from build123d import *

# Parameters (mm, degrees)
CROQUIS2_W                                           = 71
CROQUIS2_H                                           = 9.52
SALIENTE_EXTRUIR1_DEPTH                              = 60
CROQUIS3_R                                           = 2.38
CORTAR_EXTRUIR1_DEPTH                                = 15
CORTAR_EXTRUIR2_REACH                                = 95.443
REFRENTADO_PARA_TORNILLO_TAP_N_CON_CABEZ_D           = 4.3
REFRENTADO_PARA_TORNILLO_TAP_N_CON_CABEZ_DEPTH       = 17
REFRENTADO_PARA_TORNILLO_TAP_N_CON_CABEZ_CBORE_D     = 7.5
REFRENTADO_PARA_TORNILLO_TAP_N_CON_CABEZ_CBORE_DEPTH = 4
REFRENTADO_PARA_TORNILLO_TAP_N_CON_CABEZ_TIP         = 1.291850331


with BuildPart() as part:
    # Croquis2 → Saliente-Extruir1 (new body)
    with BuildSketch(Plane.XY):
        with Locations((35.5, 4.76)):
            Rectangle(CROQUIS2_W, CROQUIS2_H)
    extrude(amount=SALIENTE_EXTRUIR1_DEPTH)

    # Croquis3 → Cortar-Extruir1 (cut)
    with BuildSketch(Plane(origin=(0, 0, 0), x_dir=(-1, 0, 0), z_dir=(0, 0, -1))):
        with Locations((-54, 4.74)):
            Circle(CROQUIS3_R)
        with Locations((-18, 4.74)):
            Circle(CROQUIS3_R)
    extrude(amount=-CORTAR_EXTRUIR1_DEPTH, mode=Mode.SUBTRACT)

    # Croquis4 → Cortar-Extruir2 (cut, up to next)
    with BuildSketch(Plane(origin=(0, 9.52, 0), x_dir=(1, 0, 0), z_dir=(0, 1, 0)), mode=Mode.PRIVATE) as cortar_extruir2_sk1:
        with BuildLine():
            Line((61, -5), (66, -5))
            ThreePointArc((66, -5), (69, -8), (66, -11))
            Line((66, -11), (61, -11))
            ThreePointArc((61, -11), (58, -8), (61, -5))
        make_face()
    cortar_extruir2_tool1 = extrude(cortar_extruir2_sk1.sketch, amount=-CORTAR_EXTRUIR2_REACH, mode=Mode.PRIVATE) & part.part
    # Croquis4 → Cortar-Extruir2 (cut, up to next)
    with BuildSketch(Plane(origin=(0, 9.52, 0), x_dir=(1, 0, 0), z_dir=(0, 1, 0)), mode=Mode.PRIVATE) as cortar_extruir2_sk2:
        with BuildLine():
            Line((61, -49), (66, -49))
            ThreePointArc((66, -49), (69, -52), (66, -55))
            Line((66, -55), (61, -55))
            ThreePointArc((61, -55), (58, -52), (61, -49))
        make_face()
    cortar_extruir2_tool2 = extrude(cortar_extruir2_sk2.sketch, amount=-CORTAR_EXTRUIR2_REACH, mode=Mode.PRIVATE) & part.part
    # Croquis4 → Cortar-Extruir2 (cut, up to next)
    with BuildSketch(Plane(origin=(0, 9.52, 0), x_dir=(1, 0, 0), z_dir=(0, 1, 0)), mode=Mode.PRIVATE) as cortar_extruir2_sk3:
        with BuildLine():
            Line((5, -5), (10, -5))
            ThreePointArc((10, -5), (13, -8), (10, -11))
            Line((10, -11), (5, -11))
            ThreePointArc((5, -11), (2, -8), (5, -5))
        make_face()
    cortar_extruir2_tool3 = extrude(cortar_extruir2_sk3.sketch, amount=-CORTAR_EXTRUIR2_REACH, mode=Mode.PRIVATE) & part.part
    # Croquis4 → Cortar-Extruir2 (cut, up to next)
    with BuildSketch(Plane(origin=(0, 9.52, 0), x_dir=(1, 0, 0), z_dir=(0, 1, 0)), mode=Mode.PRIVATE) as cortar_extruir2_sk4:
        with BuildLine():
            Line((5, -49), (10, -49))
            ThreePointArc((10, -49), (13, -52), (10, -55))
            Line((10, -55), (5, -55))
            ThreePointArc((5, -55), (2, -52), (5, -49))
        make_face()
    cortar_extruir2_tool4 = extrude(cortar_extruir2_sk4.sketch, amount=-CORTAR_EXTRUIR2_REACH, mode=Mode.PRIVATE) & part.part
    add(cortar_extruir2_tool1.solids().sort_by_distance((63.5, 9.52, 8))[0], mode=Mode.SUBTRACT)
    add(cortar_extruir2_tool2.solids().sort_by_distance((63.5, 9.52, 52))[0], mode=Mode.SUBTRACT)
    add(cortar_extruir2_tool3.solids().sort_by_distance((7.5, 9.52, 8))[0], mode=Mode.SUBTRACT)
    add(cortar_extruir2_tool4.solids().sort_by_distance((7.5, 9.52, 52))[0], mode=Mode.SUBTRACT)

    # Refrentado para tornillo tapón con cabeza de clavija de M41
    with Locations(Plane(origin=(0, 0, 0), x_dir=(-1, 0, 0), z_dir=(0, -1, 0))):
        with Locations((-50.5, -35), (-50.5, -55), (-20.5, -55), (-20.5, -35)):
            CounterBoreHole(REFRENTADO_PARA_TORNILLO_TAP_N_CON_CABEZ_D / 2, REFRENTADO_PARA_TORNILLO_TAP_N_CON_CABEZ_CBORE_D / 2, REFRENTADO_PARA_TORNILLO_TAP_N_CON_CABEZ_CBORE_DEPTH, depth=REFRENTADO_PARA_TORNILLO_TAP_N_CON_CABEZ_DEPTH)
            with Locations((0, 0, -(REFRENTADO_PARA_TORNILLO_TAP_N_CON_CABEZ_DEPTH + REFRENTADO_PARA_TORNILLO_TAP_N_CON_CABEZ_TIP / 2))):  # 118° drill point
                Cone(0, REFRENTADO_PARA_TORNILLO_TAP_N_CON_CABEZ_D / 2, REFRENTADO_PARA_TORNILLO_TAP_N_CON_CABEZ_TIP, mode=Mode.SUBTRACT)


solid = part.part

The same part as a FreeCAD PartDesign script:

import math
import FreeCAD as App
import Part
import Sketcher
from FreeCAD import Vector


def add_polygon(sketch, points):
    """Adds a closed chain of lines whose ends are joined by coincident constraints."""
    first, n = sketch.GeometryCount, len(points)
    for a, b in zip(points, points[1:] + points[:1]):
        sketch.addGeometry(Part.LineSegment(App.Vector(*a, 0), App.Vector(*b, 0)), False)
    for i in range(n):
        sketch.addConstraint(Sketcher.Constraint("Coincident", first + i, 2, first + (i + 1) % n, 1))

doc = App.newDocument("Part")
params = doc.addObject("Spreadsheet::Sheet", "Params")
for row, (alias, value) in enumerate([
    ("sketch1_width", "71 mm"),
    ("sketch1_height", "9.52 mm"),
    ("pad1_length", "60 mm"),
    ("sketch2_diameter", "4.76 mm"),
    ("pocket1_length", "15 mm"),
    ("sketch3_radius", "3 mm"),
    ("sketch3_width", "5 mm"),
    ("sketch4_radius", "3 mm"),
    ("sketch4_width", "5 mm"),
    ("sketch5_radius", "3 mm"),
    ("sketch5_width", "5 mm"),
    ("sketch6_radius", "3 mm"),
    ("sketch6_width", "5 mm"),
    ("sketch7_diameter", "4.3 mm"),
    ("hole_diameter", "4.3 mm"),
    ("hole_depth", "17 mm"),
    ("hole_cbore_diameter", "7.5 mm"),
    ("hole_cbore_depth", "4 mm"),
], start=1):
    params.set(f"A{row}", alias)
    params.set(f"B{row}", "=" + value)
    params.setAlias(f"B{row}", alias)

body = doc.addObject("PartDesign::Body", "Body")

# Sketch on XY plane
sketch1 = body.newObject("Sketcher::SketchObject", "Sketch")
sketch1.AttachmentSupport = (doc.getObject("XY_Plane"), [""])
sketch1.MapMode = "FlatFace"
add_polygon(sketch1, [(0, 10), (0, 0), (71, 0), (71, 10)])  # lines 0-3
sketch1.addConstraint(Sketcher.Constraint("Vertical", 0))
sketch1.addConstraint(Sketcher.Constraint("Horizontal", 1))
sketch1.addConstraint(Sketcher.Constraint("Vertical", 2))
sketch1.addConstraint(Sketcher.Constraint("Horizontal", 3))
sketch1.addConstraint(Sketcher.Constraint("Coincident", 0, 2, -1, 1))
sketch1.addConstraint(Sketcher.Constraint("DistanceX", 1, 1, 1, 2, 71.0))
sketch1.addConstraint(Sketcher.Constraint("DistanceY", 0, 2, 0, 1, 9.52))
sketch1.setExpression("Constraints[9]", "Params.sketch1_width")
sketch1.setExpression("Constraints[10]", "Params.sketch1_height")
pad1 = body.newObject("PartDesign::Pad", "Pad")
pad1.Profile = sketch1
pad1.setExpression("Length", "Params.pad1_length")

# Sketch on XY plane
sketch2 = body.newObject("Sketcher::SketchObject", "Sketch001")
sketch2.AttachmentSupport = (doc.getObject("XY_Plane"), [""])
sketch2.MapMode = "FlatFace"
sketch2.addGeometry(Part.Circle(Vector(54, 4.7, 0), Vector(0, 0, 1), 2.4), False)
sketch2.addGeometry(Part.Circle(Vector(18, 4.7, 0), Vector(0, 0, 1), 2.4), False)
sketch2.addConstraint(Sketcher.Constraint("Equal", 0, 1))
sketch2.addConstraint(Sketcher.Constraint("Horizontal", 0, 3, 1, 3))
sketch2.addConstraint(Sketcher.Constraint("Diameter", 0, 4.76))
sketch2.addConstraint(Sketcher.Constraint("DistanceX", -1, 1, 0, 3, 54.0))
sketch2.addConstraint(Sketcher.Constraint("DistanceX", -1, 1, 1, 3, 18.0))
sketch2.addConstraint(Sketcher.Constraint("DistanceY", -1, 1, 0, 3, 4.74))
sketch2.setExpression("Constraints[2]", "Params.sketch2_diameter")
pocket1 = body.newObject("PartDesign::Pocket", "Pocket")
pocket1.Profile = sketch2
pocket1.setExpression("Length", "Params.pocket1_length")
pocket1.Reversed = True

# Sketch on XZ plane
sketch3 = body.newObject("Sketcher::SketchObject", "Sketch002")
sketch3.AttachmentSupport = (doc.getObject("XZ_Plane"), [""])
sketch3.MapMode = "FlatFace"
sketch3.AttachmentOffset = App.Placement(Vector(0, 0, -9.52), App.Rotation())
sketch3.addGeometry(Part.LineSegment(Vector(66, 5, 0), Vector(61, 5, 0)), False)
sketch3.addGeometry(Part.ArcOfCircle(Part.Circle(Vector(61, 8, 0), Vector(0, 0, 1), 3), math.radians(90), math.radians(270)), False)
sketch3.addGeometry(Part.LineSegment(Vector(61, 11, 0), Vector(66, 11, 0)), False)
sketch3.addGeometry(Part.ArcOfCircle(Part.Circle(Vector(66, 8, 0), Vector(0, 0, 1), 3), math.radians(-90), math.radians(90)), False)
sketch3.addConstraint(Sketcher.Constraint("Tangent", 0, 2, 1, 2))
sketch3.addConstraint(Sketcher.Constraint("Tangent", 1, 1, 2, 1))
sketch3.addConstraint(Sketcher.Constraint("Tangent", 2, 2, 3, 2))
sketch3.addConstraint(Sketcher.Constraint("Tangent", 3, 1, 0, 1))
sketch3.addConstraint(Sketcher.Constraint("Horizontal", 0))
sketch3.addConstraint(Sketcher.Constraint("Horizontal", 2))
sketch3.addConstraint(Sketcher.Constraint("Radius", 1, 3.0))
sketch3.addConstraint(Sketcher.Constraint("DistanceX", 0, 2, 0, 1, 5.0))
sketch3.addConstraint(Sketcher.Constraint("DistanceX", -1, 1, 1, 3, 61.0))
sketch3.addConstraint(Sketcher.Constraint("DistanceY", -1, 1, 1, 3, 8.0))
sketch3.setExpression("Constraints[6]", "Params.sketch3_radius")
sketch3.setExpression("Constraints[7]", "Params.sketch3_width")
pocket2 = body.newObject("PartDesign::Pocket", "Pocket001")
pocket2.Profile = sketch3
pocket2.Type = "UpToFirst"
pocket2.Reversed = True

# Sketch on XZ plane
sketch4 = body.newObject("Sketcher::SketchObject", "Sketch003")
sketch4.AttachmentSupport = (doc.getObject("XZ_Plane"), [""])
sketch4.MapMode = "FlatFace"
sketch4.AttachmentOffset = App.Placement(Vector(0, 0, -9.52), App.Rotation())
sketch4.addGeometry(Part.LineSegment(Vector(66, 49, 0), Vector(61, 49, 0)), False)
sketch4.addGeometry(Part.ArcOfCircle(Part.Circle(Vector(61, 52, 0), Vector(0, 0, 1), 3), math.radians(90), math.radians(270)), False)
sketch4.addGeometry(Part.LineSegment(Vector(61, 55, 0), Vector(66, 55, 0)), False)
sketch4.addGeometry(Part.ArcOfCircle(Part.Circle(Vector(66, 52, 0), Vector(0, 0, 1), 3), math.radians(-90), math.radians(90)), False)
sketch4.addConstraint(Sketcher.Constraint("Tangent", 0, 2, 1, 2))
sketch4.addConstraint(Sketcher.Constraint("Tangent", 1, 1, 2, 1))
sketch4.addConstraint(Sketcher.Constraint("Tangent", 2, 2, 3, 2))
sketch4.addConstraint(Sketcher.Constraint("Tangent", 3, 1, 0, 1))
sketch4.addConstraint(Sketcher.Constraint("Horizontal", 0))
sketch4.addConstraint(Sketcher.Constraint("Horizontal", 2))
sketch4.addConstraint(Sketcher.Constraint("Radius", 1, 3.0))
sketch4.addConstraint(Sketcher.Constraint("DistanceX", 0, 2, 0, 1, 5.0))
sketch4.addConstraint(Sketcher.Constraint("DistanceX", -1, 1, 1, 3, 61.0))
sketch4.addConstraint(Sketcher.Constraint("DistanceY", -1, 1, 1, 3, 52.0))
sketch4.setExpression("Constraints[6]", "Params.sketch4_radius")
sketch4.setExpression("Constraints[7]", "Params.sketch4_width")
pocket3 = body.newObject("PartDesign::Pocket", "Pocket002")
pocket3.Profile = sketch4
pocket3.Type = "UpToFirst"
pocket3.Reversed = True

# Sketch on XZ plane
sketch5 = body.newObject("Sketcher::SketchObject", "Sketch004")
sketch5.AttachmentSupport = (doc.getObject("XZ_Plane"), [""])
sketch5.MapMode = "FlatFace"
sketch5.AttachmentOffset = App.Placement(Vector(0, 0, -9.52), App.Rotation())
sketch5.addGeometry(Part.LineSegment(Vector(10, 5, 0), Vector(5, 5, 0)), False)
sketch5.addGeometry(Part.ArcOfCircle(Part.Circle(Vector(5, 8, 0), Vector(0, 0, 1), 3), math.radians(90), math.radians(270)), False)
sketch5.addGeometry(Part.LineSegment(Vector(5, 11, 0), Vector(10, 11, 0)), False)
sketch5.addGeometry(Part.ArcOfCircle(Part.Circle(Vector(10, 8, 0), Vector(0, 0, 1), 3), math.radians(-90), math.radians(90)), False)
sketch5.addConstraint(Sketcher.Constraint("Tangent", 0, 2, 1, 2))
sketch5.addConstraint(Sketcher.Constraint("Tangent", 1, 1, 2, 1))
sketch5.addConstraint(Sketcher.Constraint("Tangent", 2, 2, 3, 2))
sketch5.addConstraint(Sketcher.Constraint("Tangent", 3, 1, 0, 1))
sketch5.addConstraint(Sketcher.Constraint("Horizontal", 0))
sketch5.addConstraint(Sketcher.Constraint("Horizontal", 2))
sketch5.addConstraint(Sketcher.Constraint("Radius", 1, 3.0))
sketch5.addConstraint(Sketcher.Constraint("DistanceX", 0, 2, 0, 1, 5.0))
sketch5.addConstraint(Sketcher.Constraint("DistanceX", -1, 1, 1, 3, 5.0))
sketch5.addConstraint(Sketcher.Constraint("DistanceY", -1, 1, 1, 3, 8.0))
sketch5.setExpression("Constraints[6]", "Params.sketch5_radius")
sketch5.setExpression("Constraints[7]", "Params.sketch5_width")
pocket4 = body.newObject("PartDesign::Pocket", "Pocket003")
pocket4.Profile = sketch5
pocket4.Type = "UpToFirst"
pocket4.Reversed = True

# Sketch on XZ plane
sketch6 = body.newObject("Sketcher::SketchObject", "Sketch005")
sketch6.AttachmentSupport = (doc.getObject("XZ_Plane"), [""])
sketch6.MapMode = "FlatFace"
sketch6.AttachmentOffset = App.Placement(Vector(0, 0, -9.52), App.Rotation())
sketch6.addGeometry(Part.LineSegment(Vector(10, 49, 0), Vector(5, 49, 0)), False)
sketch6.addGeometry(Part.ArcOfCircle(Part.Circle(Vector(5, 52, 0), Vector(0, 0, 1), 3), math.radians(90), math.radians(270)), False)
sketch6.addGeometry(Part.LineSegment(Vector(5, 55, 0), Vector(10, 55, 0)), False)
sketch6.addGeometry(Part.ArcOfCircle(Part.Circle(Vector(10, 52, 0), Vector(0, 0, 1), 3), math.radians(-90), math.radians(90)), False)
sketch6.addConstraint(Sketcher.Constraint("Tangent", 0, 2, 1, 2))
sketch6.addConstraint(Sketcher.Constraint("Tangent", 1, 1, 2, 1))
sketch6.addConstraint(Sketcher.Constraint("Tangent", 2, 2, 3, 2))
sketch6.addConstraint(Sketcher.Constraint("Tangent", 3, 1, 0, 1))
sketch6.addConstraint(Sketcher.Constraint("Horizontal", 0))
sketch6.addConstraint(Sketcher.Constraint("Horizontal", 2))
sketch6.addConstraint(Sketcher.Constraint("Radius", 1, 3.0))
sketch6.addConstraint(Sketcher.Constraint("DistanceX", 0, 2, 0, 1, 5.0))
sketch6.addConstraint(Sketcher.Constraint("DistanceX", -1, 1, 1, 3, 5.0))
sketch6.addConstraint(Sketcher.Constraint("DistanceY", -1, 1, 1, 3, 52.0))
sketch6.setExpression("Constraints[6]", "Params.sketch6_radius")
sketch6.setExpression("Constraints[7]", "Params.sketch6_width")
pocket5 = body.newObject("PartDesign::Pocket", "Pocket004")
pocket5.Profile = sketch6
pocket5.Type = "UpToFirst"
pocket5.Reversed = True

# Sketch on XZ plane
sketch7 = body.newObject("Sketcher::SketchObject", "Sketch006")
sketch7.AttachmentSupport = (doc.getObject("XZ_Plane"), [""])
sketch7.MapMode = "FlatFace"
sketch7.addGeometry(Part.Circle(Vector(50.5, 35, 0), Vector(0, 0, 1), 2.1), False)
sketch7.addGeometry(Part.Circle(Vector(50.5, 55, 0), Vector(0, 0, 1), 2.1), False)
sketch7.addGeometry(Part.Circle(Vector(20.5, 55, 0), Vector(0, 0, 1), 2.1), False)
sketch7.addGeometry(Part.Circle(Vector(20.5, 35, 0), Vector(0, 0, 1), 2.1), False)
sketch7.addConstraint(Sketcher.Constraint("Equal", 0, 1))
sketch7.addConstraint(Sketcher.Constraint("Equal", 1, 2))
sketch7.addConstraint(Sketcher.Constraint("Equal", 2, 3))
sketch7.addConstraint(Sketcher.Constraint("Horizontal", 1, 3, 2, 3))
sketch7.addConstraint(Sketcher.Constraint("Horizontal", 0, 3, 3, 3))
sketch7.addConstraint(Sketcher.Constraint("Vertical", 0, 3, 1, 3))
sketch7.addConstraint(Sketcher.Constraint("Vertical", 2, 3, 3, 3))
sketch7.addConstraint(Sketcher.Constraint("Diameter", 0, 4.3))
sketch7.addConstraint(Sketcher.Constraint("DistanceY", -1, 1, 0, 3, 35.0))
sketch7.addConstraint(Sketcher.Constraint("DistanceY", -1, 1, 1, 3, 55.0))
sketch7.addConstraint(Sketcher.Constraint("DistanceX", 2, 3, 1, 3, 30.0))
sketch7.addConstraint(Sketcher.Constraint("DistanceX", -1, 1, 0, 3, 50.5))
sketch7.setExpression("Constraints[7]", "Params.sketch7_diameter")
doc.recompute()
hole = body.newObject("PartDesign::Hole", "Hole")
hole.Profile = sketch7
hole.ThreadType = "None"
hole.setExpression("Diameter", "Params.hole_diameter")
hole.DepthType = "Dimension"
hole.setExpression("Depth", "Params.hole_depth")
hole.DrillPoint = "Angled"
hole.DrillPointAngle = 118
hole.HoleCutType = "Counterbore"
hole.setExpression("HoleCutDiameter", "Params.hole_cbore_diameter")
hole.setExpression("HoleCutDepth", "Params.hole_cbore_depth")

doc.recompute()
